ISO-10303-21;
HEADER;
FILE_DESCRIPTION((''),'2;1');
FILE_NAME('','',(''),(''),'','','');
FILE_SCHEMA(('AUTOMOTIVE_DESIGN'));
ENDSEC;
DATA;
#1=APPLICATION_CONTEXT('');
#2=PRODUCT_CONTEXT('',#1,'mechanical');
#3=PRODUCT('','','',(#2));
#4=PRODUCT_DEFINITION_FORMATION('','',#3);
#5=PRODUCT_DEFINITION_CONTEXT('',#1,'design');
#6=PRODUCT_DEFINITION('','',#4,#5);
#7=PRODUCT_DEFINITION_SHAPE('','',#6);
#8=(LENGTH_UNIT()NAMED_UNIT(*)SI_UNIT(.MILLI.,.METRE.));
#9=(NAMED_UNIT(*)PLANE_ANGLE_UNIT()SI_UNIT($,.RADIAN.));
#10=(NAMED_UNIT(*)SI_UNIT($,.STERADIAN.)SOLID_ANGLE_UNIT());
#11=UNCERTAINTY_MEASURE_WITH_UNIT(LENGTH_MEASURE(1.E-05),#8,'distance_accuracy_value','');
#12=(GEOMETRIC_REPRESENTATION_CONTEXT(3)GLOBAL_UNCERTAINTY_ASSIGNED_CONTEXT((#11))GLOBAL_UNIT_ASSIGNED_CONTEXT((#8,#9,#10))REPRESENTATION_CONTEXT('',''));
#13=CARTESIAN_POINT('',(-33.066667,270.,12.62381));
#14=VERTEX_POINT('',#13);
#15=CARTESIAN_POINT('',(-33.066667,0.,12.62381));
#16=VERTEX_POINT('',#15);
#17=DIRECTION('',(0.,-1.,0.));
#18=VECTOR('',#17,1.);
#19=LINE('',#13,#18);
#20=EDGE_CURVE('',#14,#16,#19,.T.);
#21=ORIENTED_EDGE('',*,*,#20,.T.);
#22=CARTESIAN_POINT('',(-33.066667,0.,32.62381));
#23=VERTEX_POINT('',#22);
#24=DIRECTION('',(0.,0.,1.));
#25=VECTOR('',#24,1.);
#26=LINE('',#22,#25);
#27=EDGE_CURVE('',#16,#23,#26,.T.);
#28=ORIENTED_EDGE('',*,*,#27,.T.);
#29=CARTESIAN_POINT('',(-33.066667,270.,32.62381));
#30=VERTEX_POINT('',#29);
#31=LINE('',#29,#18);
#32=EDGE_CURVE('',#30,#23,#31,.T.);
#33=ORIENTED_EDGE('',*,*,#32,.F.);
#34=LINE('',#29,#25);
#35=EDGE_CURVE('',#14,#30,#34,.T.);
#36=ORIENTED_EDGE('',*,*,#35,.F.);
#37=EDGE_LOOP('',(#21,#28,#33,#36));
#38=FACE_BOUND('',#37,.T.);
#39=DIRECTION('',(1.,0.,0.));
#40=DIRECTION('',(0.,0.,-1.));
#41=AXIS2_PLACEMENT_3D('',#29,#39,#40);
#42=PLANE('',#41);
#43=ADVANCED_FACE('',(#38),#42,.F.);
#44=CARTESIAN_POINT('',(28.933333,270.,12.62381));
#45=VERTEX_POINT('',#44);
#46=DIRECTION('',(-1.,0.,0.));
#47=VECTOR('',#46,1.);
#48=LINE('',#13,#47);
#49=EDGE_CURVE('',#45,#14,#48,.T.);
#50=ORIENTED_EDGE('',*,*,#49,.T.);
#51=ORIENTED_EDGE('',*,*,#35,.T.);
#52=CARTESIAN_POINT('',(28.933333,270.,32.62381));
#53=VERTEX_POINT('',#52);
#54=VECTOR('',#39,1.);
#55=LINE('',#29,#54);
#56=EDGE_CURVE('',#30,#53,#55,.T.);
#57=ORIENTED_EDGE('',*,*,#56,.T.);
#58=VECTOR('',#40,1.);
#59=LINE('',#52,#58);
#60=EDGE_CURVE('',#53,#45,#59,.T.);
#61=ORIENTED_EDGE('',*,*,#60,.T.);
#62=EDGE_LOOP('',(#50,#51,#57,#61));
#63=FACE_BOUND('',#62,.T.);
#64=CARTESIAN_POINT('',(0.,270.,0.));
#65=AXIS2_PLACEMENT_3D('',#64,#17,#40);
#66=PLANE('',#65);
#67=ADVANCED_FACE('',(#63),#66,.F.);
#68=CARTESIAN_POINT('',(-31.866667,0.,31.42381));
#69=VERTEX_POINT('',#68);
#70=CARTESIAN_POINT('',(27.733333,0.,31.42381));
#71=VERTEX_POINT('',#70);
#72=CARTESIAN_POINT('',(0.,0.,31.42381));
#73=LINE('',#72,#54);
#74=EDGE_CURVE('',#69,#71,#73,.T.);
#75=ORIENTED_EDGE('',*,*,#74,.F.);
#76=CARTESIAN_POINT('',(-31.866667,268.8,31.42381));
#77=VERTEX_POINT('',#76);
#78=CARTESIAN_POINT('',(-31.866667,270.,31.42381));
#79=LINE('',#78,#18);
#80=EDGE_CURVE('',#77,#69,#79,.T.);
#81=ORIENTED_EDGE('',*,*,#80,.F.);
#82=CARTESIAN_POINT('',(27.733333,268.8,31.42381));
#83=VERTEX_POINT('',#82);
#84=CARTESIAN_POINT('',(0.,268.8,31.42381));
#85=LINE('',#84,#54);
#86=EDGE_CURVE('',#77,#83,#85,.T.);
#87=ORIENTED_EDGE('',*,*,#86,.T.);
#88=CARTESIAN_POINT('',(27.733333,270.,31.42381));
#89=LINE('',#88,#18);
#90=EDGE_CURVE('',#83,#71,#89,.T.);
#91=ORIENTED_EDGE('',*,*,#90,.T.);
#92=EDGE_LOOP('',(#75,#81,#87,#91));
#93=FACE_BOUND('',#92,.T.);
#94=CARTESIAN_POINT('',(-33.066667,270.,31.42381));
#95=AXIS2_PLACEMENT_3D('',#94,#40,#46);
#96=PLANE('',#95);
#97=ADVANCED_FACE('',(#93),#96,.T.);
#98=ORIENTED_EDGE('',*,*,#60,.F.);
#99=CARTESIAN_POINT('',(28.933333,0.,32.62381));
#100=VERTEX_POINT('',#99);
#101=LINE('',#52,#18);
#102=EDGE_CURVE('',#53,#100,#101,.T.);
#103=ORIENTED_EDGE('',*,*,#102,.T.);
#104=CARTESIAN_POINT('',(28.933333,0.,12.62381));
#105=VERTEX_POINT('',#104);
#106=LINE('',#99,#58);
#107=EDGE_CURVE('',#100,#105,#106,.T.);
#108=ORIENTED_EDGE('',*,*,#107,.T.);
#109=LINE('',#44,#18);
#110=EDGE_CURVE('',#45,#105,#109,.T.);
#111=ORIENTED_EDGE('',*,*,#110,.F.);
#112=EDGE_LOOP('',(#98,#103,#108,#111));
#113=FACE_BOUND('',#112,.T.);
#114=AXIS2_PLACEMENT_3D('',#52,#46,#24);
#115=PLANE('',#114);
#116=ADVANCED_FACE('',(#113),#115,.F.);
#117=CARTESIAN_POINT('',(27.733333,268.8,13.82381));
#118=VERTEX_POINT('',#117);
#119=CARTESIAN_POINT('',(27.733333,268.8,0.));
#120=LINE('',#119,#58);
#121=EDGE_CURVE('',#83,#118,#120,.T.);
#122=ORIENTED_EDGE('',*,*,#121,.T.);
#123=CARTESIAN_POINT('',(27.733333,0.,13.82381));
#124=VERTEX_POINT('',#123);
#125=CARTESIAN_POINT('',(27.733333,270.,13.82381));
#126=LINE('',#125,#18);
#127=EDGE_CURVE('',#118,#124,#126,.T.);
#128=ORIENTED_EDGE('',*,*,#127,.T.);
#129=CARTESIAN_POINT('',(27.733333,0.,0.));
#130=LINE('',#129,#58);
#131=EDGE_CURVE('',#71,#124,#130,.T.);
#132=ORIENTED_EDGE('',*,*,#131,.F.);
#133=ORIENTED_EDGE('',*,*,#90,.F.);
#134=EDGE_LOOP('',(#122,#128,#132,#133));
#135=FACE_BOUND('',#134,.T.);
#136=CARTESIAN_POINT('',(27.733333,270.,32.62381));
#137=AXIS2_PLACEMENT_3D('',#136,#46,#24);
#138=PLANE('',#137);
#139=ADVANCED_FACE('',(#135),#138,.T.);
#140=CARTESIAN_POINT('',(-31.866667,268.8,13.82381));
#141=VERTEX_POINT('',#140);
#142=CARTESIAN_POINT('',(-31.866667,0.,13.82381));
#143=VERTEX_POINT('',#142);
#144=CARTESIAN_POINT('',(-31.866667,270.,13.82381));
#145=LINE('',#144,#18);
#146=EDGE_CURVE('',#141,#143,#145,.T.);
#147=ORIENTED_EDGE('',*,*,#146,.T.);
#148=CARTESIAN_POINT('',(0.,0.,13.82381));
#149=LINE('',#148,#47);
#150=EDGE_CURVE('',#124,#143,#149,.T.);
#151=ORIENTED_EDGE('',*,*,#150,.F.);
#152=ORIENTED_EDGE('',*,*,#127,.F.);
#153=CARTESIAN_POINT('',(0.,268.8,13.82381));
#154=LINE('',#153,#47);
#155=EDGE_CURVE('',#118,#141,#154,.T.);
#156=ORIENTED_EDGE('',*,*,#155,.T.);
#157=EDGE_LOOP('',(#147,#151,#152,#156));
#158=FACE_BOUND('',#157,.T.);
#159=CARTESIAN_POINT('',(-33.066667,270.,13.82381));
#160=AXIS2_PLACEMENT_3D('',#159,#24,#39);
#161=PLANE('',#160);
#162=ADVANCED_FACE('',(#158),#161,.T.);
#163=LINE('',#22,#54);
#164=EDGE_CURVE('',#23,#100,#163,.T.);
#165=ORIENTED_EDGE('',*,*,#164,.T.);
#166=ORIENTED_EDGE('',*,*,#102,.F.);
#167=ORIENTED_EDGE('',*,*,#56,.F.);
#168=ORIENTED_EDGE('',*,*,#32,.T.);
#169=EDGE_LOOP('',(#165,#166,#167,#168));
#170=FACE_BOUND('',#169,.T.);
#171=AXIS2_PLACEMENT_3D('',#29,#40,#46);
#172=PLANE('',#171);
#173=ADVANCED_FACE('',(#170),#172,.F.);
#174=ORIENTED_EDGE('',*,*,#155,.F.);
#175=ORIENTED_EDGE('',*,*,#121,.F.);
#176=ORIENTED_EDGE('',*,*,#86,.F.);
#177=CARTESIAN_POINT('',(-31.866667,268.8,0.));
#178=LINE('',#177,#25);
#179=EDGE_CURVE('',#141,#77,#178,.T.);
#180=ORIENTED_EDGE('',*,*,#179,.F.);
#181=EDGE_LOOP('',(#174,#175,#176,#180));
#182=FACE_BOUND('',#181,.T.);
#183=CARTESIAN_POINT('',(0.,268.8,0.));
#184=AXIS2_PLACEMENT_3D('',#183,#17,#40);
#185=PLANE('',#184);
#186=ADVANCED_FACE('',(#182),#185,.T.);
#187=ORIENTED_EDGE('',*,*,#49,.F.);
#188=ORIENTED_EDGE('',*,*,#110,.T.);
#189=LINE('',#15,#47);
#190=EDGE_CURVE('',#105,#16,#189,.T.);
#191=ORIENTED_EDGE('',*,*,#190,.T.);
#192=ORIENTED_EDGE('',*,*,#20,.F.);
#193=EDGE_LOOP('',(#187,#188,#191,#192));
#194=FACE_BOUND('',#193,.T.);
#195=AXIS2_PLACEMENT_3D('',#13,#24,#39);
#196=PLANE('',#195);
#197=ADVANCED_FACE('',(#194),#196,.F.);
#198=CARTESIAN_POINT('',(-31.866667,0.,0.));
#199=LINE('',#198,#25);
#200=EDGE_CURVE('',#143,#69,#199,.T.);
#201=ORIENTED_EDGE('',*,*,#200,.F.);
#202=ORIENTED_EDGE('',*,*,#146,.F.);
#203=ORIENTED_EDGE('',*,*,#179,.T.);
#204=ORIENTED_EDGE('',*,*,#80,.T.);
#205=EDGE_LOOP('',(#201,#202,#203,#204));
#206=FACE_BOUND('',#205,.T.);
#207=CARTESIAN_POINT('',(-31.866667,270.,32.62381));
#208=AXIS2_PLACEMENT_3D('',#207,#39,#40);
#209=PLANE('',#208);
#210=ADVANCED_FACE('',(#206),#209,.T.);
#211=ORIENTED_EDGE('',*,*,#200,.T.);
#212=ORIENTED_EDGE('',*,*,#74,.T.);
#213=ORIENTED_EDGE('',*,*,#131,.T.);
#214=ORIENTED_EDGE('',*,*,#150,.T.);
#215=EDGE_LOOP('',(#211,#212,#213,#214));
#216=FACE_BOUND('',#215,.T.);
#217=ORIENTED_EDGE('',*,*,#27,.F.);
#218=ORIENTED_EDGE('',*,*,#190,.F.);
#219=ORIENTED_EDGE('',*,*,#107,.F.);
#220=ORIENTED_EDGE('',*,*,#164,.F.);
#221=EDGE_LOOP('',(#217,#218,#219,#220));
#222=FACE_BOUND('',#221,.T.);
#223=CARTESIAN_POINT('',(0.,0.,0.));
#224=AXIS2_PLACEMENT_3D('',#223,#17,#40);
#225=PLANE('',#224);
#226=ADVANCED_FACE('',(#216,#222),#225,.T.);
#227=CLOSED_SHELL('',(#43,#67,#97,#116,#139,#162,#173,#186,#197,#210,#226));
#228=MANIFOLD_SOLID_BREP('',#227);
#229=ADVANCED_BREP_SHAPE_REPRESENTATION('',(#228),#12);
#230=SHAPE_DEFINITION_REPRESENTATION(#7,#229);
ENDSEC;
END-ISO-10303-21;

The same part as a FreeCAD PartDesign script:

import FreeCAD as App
import Part
import Sketcher
from FreeCAD import Vector


def faces_at(feature, points):
    """Names of the faces that lie closest to the given points."""
    faces = feature.Shape.Faces
    near = lambda p: min(range(len(faces)), key=lambda i: faces[i].distToShape(Part.Vertex(*p))[0])
    return sorted({f"Face{near(p) + 1}" for p in points})


def add_polygon(sketch, points):
    """Adds a closed chain of lines whose ends are joined by coincident constraints."""
    first, n = sketch.GeometryCount, len(points)
    for a, b in zip(points, points[1:] + points[:1]):
        sketch.addGeometry(Part.LineSegment(App.Vector(*a, 0), App.Vector(*b, 0)), False)
    for i in range(n):
        sketch.addConstraint(Sketcher.Constraint("Coincident", first + i, 2, first + (i + 1) % n, 1))

doc = App.newDocument("Part")
body = doc.addObject("PartDesign::Body", "Body")

sketch1 = body.newObject("Sketcher::SketchObject", "Sketch")
sketch1.AttachmentSupport = (doc.getObject("XZ_Plane"), [""])
sketch1.MapMode = "FlatFace"
add_polygon(sketch1, [(-33, 13), (-33, 33), (29, 33), (29, 13)])
sketch1.addConstraint([
    Sketcher.Constraint("Vertical", 0),
    Sketcher.Constraint("Horizontal", 1),
    Sketcher.Constraint("Vertical", 2),
    Sketcher.Constraint("Horizontal", 3),
    Sketcher.Constraint("DistanceX", 1, 1, 1, 2, 62.0),
    Sketcher.Constraint("DistanceY", 0, 1, 0, 2, 20.0),
    Sketcher.Constraint("DistanceY", -1, 1, 0, 2, 32.62381),
    Sketcher.Constraint("DistanceX", 0, 2, -1, 1, 33.066667),
])
pad1 = body.newObject("PartDesign::Pad", "Pad")
pad1.Profile = sketch1
pad1.Length = 270
pad1.Reversed = True
doc.recompute()

thickness = body.newObject("PartDesign::Thickness", "Thickness")
thickness.Base = (pad1, faces_at(pad1, [(-2.067, 0, 22.624)]))
thickness.Value = 1.2
thickness.Reversed = True
thickness.Join = "Intersection"

doc.recompute()
